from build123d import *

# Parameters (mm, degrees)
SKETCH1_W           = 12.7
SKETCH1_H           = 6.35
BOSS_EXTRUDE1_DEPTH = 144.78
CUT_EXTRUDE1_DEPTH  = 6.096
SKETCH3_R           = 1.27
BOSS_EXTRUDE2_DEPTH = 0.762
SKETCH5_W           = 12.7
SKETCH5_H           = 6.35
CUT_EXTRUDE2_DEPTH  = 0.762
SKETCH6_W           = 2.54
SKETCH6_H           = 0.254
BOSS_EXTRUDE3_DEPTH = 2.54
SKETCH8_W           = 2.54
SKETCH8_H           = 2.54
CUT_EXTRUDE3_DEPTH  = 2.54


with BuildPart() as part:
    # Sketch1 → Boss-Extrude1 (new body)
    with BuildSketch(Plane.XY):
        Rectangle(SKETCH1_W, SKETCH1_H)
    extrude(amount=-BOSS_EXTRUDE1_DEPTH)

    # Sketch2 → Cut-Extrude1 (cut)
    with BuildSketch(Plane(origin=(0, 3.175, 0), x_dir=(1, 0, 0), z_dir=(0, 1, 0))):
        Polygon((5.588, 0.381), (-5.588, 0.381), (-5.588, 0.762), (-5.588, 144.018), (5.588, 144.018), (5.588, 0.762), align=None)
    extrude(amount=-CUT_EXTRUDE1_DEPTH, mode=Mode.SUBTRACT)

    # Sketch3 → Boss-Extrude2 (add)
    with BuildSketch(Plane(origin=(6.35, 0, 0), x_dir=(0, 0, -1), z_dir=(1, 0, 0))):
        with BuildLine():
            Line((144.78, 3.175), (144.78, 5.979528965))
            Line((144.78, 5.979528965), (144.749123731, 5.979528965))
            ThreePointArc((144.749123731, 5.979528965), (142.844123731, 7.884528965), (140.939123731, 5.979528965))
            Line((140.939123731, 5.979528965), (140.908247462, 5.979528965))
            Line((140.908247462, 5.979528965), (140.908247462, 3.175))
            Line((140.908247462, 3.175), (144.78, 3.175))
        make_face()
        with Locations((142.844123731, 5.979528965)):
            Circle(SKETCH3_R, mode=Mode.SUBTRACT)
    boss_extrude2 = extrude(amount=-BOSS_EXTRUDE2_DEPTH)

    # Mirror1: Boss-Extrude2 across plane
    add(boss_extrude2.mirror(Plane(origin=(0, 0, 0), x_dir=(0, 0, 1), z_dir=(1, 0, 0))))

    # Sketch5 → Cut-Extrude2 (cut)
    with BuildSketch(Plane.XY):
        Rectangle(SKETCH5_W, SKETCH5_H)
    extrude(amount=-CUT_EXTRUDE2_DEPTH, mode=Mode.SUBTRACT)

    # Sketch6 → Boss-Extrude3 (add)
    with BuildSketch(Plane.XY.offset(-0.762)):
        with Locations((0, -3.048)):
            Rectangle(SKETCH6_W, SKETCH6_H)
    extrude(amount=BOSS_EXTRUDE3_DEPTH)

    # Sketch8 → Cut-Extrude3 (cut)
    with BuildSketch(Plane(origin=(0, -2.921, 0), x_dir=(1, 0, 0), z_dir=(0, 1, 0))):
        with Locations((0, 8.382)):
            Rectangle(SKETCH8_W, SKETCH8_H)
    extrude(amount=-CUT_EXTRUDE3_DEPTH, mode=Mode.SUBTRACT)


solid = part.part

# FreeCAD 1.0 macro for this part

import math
import FreeCAD as App
import Part
import Sketcher
from FreeCAD import Vector
Q = App.Units.Quantity

doc = App.newDocument("Part")
params = doc.addObject("Spreadsheet::Sheet", "Params")
for row, (alias, value) in enumerate([
    ("sketch1_width", "0.5 in"),
    ("sketch1_height", "0.25 in"),
    ("pad1_length", "5.7 in"),
    ("sketch2_width", "0.44 in"),
    ("sketch2_height", "5.655 in"),
    ("pocket1_length", "0.24 in"),
    ("sketch3_diameter", "0.1 in"),
    ("sketch3_radius", "0.075 in"),
    ("pad2_length", "0.03 in"),
    ("sketch4_width", "0.5 in"),
    ("sketch4_height", "0.25 in"),
    ("pocket2_length", "0.03 in"),
    ("sketch5_width", "0.1 in"),
    ("sketch5_height", "0.01 in"),
    ("pad3_length", "0.1 in"),
    ("sketch6_width", "0.1 in"),
    ("pocket3_length", "0.1 in"),
], start=1):
    params.set(f"A{row}", alias)
    params.set(f"B{row}", "=" + value)
    params.setAlias(f"B{row}", alias)

body = doc.addObject("PartDesign::Body", "Body")

sketch1 = body.newObject("Sketcher::SketchObject", "Sketch")
sketch1.AttachmentSupport = (doc.getObject("XY_Plane"), [""])
sketch1.MapMode = "FlatFace"
sketch1.addGeometry([
    Part.LineSegment(Vector(-6, 3, 0), Vector(-6, -3, 0)),
    Part.LineSegment(Vector(-6, -3, 0), Vector(6, -3, 0)),
    Part.LineSegment(Vector(6, -3, 0), Vector(6, 3, 0)),
    Part.LineSegment(Vector(6, 3, 0), Vector(-6, 3, 0)),
], False)
sketch1.addConstraint([
    Sketcher.Constraint("Coincident", 0, 2, 1, 1),
    Sketcher.Constraint("Coincident", 1, 2, 2, 1),
    Sketcher.Constraint("Coincident", 2, 2, 3, 1),
    Sketcher.Constraint("Coincident", 3, 2, 0, 1),
    Sketcher.Constraint("Vertical", 0),
    Sketcher.Constraint("Horizontal", 1),
    Sketcher.Constraint("Vertical", 2),
    Sketcher.Constraint("Horizontal", 3),
    Sketcher.Constraint("Symmetric", 0, 2, 2, 2, -1, 1),
    Sketcher.Constraint("DistanceX", 1, 1, 1, 2, Q("0.5 in")),
    Sketcher.Constraint("DistanceY", 0, 2, 0, 1, Q("0.25 in")),
])
sketch1.setExpression("Constraints[9]", "Params.sketch1_width")
sketch1.setExpression("Constraints[10]", "Params.sketch1_height")
pad1 = body.newObject("PartDesign::Pad", "Pad")
pad1.Profile = sketch1
pad1.setExpression("Length", "Params.pad1_length")
pad1.Reversed = True

sketch2 = body.newObject("Sketcher::SketchObject", "Sketch001")
sketch2.AttachmentSupport = (doc.getObject("XZ_Plane"), [""])
sketch2.MapMode = "FlatFace"
sketch2.AttachmentOffset = App.Placement(Vector(0, 0, -0.125 * 25.4), App.Rotation())
sketch2.addGeometry([
    Part.LineSegment(Vector(-6, 0, 0), Vector(6, 0, 0)),
    Part.LineSegment(Vector(6, 0, 0), Vector(6, -144, 0)),
    Part.LineSegment(Vector(6, -144, 0), Vector(-6, -144, 0)),
    Part.LineSegment(Vector(-6, -144, 0), Vector(-6, 0, 0)),
], False)
sketch2.addConstraint([
    Sketcher.Constraint("Coincident", 0, 2, 1, 1),
    Sketcher.Constraint("Coincident", 1, 2, 2, 1),
    Sketcher.Constraint("Coincident", 2, 2, 3, 1),
    Sketcher.Constraint("Coincident", 3, 2, 0, 1),
    Sketcher.Constraint("Horizontal", 0),
    Sketcher.Constraint("Vertical", 1),
    Sketcher.Constraint("Horizontal", 2),
    Sketcher.Constraint("Vertical", 3),
    Sketcher.Constraint("DistanceX", 0, 1, 0, 2, Q("0.44 in")),
    Sketcher.Constraint("DistanceY", 1, 2, 1, 1, Q("5.655 in")),
    Sketcher.Constraint("DistanceX", -1, 1, 0, 2, Q("0.22 in")),
    Sketcher.Constraint("DistanceY", 1, 2, -1, 1, Q("5.67 in")),
])
sketch2.setExpression("Constraints[8]", "Params.sketch2_width")
sketch2.setExpression("Constraints[9]", "Params.sketch2_height")
pocket1 = body.newObject("PartDesign::Pocket", "Pocket")
pocket1.Profile = sketch2
pocket1.setExpression("Length", "Params.pocket1_length")
pocket1.Reversed = True

sketch3 = body.newObject("Sketcher::SketchObject", "Sketch002")
sketch3.AttachmentSupport = (doc.getObject("YZ_Plane"), [""])
sketch3.MapMode = "FlatFace"
sketch3.AttachmentOffset = App.Placement(Vector(0, 0, 0.25 * 25.4), App.Rotation())
sketch3.addGeometry([
    Part.LineSegment(Vector(3.175, -144.78, 0), Vector(5.98, -144.78, 0)),
    Part.LineSegment(Vector(5.98, -144.78, 0), Vector(5.98, -144.749, 0)),
    Part.ArcOfCircle(Part.Circle(Vector(5.98, -142.844, 0), Vector(0, 0, 1), 1.905), math.radians(-90), math.radians(90)),
    Part.LineSegment(Vector(5.98, -140.939, 0), Vector(5.98, -140.908, 0)),
    Part.LineSegment(Vector(5.98, -140.908, 0), Vector(3.175, -140.908, 0)),
    Part.LineSegment(Vector(3.175, -140.908, 0), Vector(3.175, -144.78, 0)),
    Part.Circle(Vector(5.98, -142.844, 0), Vector(0, 0, 1), 1.27),
], False)
sketch3.addConstraint([
    Sketcher.Constraint("Coincident", 0, 2, 1, 1),
    Sketcher.Constraint("Coincident", 1, 2, 2, 1),
    Sketcher.Constraint("Coincident", 2, 2, 3, 1),
    Sketcher.Constraint("Coincident", 3, 2, 4, 1),
    Sketcher.Constraint("Coincident", 4, 2, 5, 1),
    Sketcher.Constraint("Coincident", 5, 2, 0, 1),
    Sketcher.Constraint("Horizontal", 0),
    Sketcher.Constraint("Vertical", 1),
    Sketcher.Constraint("Vertical", 3),
    Sketcher.Constraint("Horizontal", 4),
    Sketcher.Constraint("Vertical", 5),
    Sketcher.Constraint("Coincident", 6, 3, 2, 3),
    Sketcher.Constraint("Vertical", 6, 3, 0, 2),
    Sketcher.Constraint("Vertical", 1, 2, 2, 2),
    Sketcher.Constraint("Equal", 1, 3),
    Sketcher.Constraint("Diameter", 6, Q("0.1 in")),
    Sketcher.Constraint("Radius", 2, Q("0.075 in")),
    Sketcher.Constraint("DistanceY", 0, 2, -1, 1, Q("5.7 in")),
    Sketcher.Constraint("DistanceX", -1, 1, 4, 2, Q("0.125 in")),
    Sketcher.Constraint("DistanceX", 0, 1, 0, 2, Q("2.804529 mm")),
    Sketcher.Constraint("DistanceY", 1, 1, 1, 2, Q("0.030876 mm")),
])
sketch3.setExpression("Constraints[15]", "Params.sketch3_diameter")
sketch3.setExpression("Constraints[16]", "Params.sketch3_radius")
pad2 = body.newObject("PartDesign::Pad", "Pad001")
pad2.Profile = sketch3
pad2.setExpression("Length", "Params.pad2_length")
pad2.Reversed = True
doc.recompute()

mirrored = body.newObject("PartDesign::Mirrored", "Mirrored")
mirrored.Originals = [pad2]
mirrored.MirrorPlane = (doc.getObject("YZ_Plane"), [""])
body.Tip = mirrored

sketch4 = body.newObject("Sketcher::SketchObject", "Sketch003")
sketch4.AttachmentSupport = (doc.getObject("XY_Plane"), [""])
sketch4.MapMode = "FlatFace"
sketch4.addGeometry([
    Part.LineSegment(Vector(-6, 3, 0), Vector(-6, -3, 0)),
    Part.LineSegment(Vector(-6, -3, 0), Vector(6, -3, 0)),
    Part.LineSegment(Vector(6, -3, 0), Vector(6, 3, 0)),
    Part.LineSegment(Vector(6, 3, 0), Vector(-6, 3, 0)),
], False)
sketch4.addConstraint([
    Sketcher.Constraint("Coincident", 0, 2, 1, 1),
    Sketcher.Constraint("Coincident", 1, 2, 2, 1),
    Sketcher.Constraint("Coincident", 2, 2, 3, 1),
    Sketcher.Constraint("Coincident", 3, 2, 0, 1),
    Sketcher.Constraint("Vertical", 0),
    Sketcher.Constraint("Horizontal", 1),
    Sketcher.Constraint("Vertical", 2),
    Sketcher.Constraint("Horizontal", 3),
    Sketcher.Constraint("Symmetric", 0, 2, 2, 2, -1, 1),
    Sketcher.Constraint("DistanceX", 1, 1, 1, 2, Q("0.5 in")),
    Sketcher.Constraint("DistanceY", 0, 2, 0, 1, Q("0.25 in")),
])
sketch4.setExpression("Constraints[9]", "Params.sketch4_width")
sketch4.setExpression("Constraints[10]", "Params.sketch4_height")
pocket2 = body.newObject("PartDesign::Pocket", "Pocket001")
pocket2.Profile = sketch4
pocket2.setExpression("Length", "Params.pocket2_length")

sketch5 = body.newObject("Sketcher::SketchObject", "Sketch004")
sketch5.AttachmentSupport = (doc.getObject("XY_Plane"), [""])
sketch5.MapMode = "FlatFace"
sketch5.AttachmentOffset = App.Placement(Vector(0, 0, -0.03 * 25.4), App.Rotation())
sketch5.addGeometry([
    Part.LineSegment(Vector(-1.27, -2.92, 0), Vector(-1.27, -3.17, 0)),
    Part.LineSegment(Vector(-1.27, -3.17, 0), Vector(1.27, -3.17, 0)),
    Part.LineSegment(Vector(1.27, -3.17, 0), Vector(1.27, -2.92, 0)),
    Part.LineSegment(Vector(1.27, -2.92, 0), Vector(-1.27, -2.92, 0)),
], False)
sketch5.addConstraint([
    Sketcher.Constraint("Coincident", 0, 2, 1, 1),
    Sketcher.Constraint("Coincident", 1, 2, 2, 1),
    Sketcher.Constraint("Coincident", 2, 2, 3, 1),
    Sketcher.Constraint("Coincident", 3, 2, 0, 1),
    Sketcher.Constraint("Vertical", 0),
    Sketcher.Constraint("Horizontal", 1),
    Sketcher.Constraint("Vertical", 2),
    Sketcher.Constraint("Horizontal", 3),
    Sketcher.Constraint("DistanceX", 1, 1, 1, 2, Q("0.1 in")),
    Sketcher.Constraint("DistanceY", 0, 2, 0, 1, Q("0.01 in")),
    Sketcher.Constraint("DistanceX", 0, 2, -1, 1, Q("0.05 in")),
    Sketcher.Constraint("DistanceY", 0, 2, -1, 1, Q("0.125 in")),
])
sketch5.setExpression("Constraints[8]", "Params.sketch5_width")
sketch5.setExpression("Constraints[9]", "Params.sketch5_height")
pad3 = body.newObject("PartDesign::Pad", "Pad002")
pad3.Profile = sketch5
pad3.setExpression("Length", "Params.pad3_length")

sketch6 = body.newObject("Sketcher::SketchObject", "Sketch005")
sketch6.AttachmentSupport = (doc.getObject("XZ_Plane"), [""])
sketch6.MapMode = "FlatFace"
sketch6.AttachmentOffset = App.Placement(Vector(0, 0, 0.115 * 25.4), App.Rotation())
sketch6.addGeometry([
    Part.LineSegment(Vector(-1.3, -9.7, 0), Vector(-1.3, -7.1, 0)),
    Part.LineSegment(Vector(-1.3, -7.1, 0), Vector(1.3, -7.1, 0)),
    Part.LineSegment(Vector(1.3, -7.1, 0), Vector(1.3, -9.7, 0)),
    Part.LineSegment(Vector(1.3, -9.7, 0), Vector(-1.3, -9.7, 0)),
], False)
sketch6.addConstraint([
    Sketcher.Constraint("Coincident", 0, 2, 1, 1),
    Sketcher.Constraint("Coincident", 1, 2, 2, 1),
    Sketcher.Constraint("Coincident", 2, 2, 3, 1),
    Sketcher.Constraint("Coincident", 3, 2, 0, 1),
    Sketcher.Constraint("Vertical", 0),
    Sketcher.Constraint("Horizontal", 1),
    Sketcher.Constraint("Vertical", 2),
    Sketcher.Constraint("Horizontal", 3),
    Sketcher.Constraint("Equal", 3, 0),
    Sketcher.Constraint("DistanceX", 1, 1, 1, 2, Q("0.1 in")),
    Sketcher.Constraint("DistanceX", 0, 2, -1, 1, Q("0.05 in")),
    Sketcher.Constraint("DistanceY", 0, 2, -1, 1, Q("0.28 in")),
])
sketch6.setExpression("Constraints[9]", "Params.sketch6_width")
pocket3 = body.newObject("PartDesign::Pocket", "Pocket002")
pocket3.Profile = sketch6
pocket3.setExpression("Length", "Params.pocket3_length")
pocket3.Reversed = True

doc.recompute()
